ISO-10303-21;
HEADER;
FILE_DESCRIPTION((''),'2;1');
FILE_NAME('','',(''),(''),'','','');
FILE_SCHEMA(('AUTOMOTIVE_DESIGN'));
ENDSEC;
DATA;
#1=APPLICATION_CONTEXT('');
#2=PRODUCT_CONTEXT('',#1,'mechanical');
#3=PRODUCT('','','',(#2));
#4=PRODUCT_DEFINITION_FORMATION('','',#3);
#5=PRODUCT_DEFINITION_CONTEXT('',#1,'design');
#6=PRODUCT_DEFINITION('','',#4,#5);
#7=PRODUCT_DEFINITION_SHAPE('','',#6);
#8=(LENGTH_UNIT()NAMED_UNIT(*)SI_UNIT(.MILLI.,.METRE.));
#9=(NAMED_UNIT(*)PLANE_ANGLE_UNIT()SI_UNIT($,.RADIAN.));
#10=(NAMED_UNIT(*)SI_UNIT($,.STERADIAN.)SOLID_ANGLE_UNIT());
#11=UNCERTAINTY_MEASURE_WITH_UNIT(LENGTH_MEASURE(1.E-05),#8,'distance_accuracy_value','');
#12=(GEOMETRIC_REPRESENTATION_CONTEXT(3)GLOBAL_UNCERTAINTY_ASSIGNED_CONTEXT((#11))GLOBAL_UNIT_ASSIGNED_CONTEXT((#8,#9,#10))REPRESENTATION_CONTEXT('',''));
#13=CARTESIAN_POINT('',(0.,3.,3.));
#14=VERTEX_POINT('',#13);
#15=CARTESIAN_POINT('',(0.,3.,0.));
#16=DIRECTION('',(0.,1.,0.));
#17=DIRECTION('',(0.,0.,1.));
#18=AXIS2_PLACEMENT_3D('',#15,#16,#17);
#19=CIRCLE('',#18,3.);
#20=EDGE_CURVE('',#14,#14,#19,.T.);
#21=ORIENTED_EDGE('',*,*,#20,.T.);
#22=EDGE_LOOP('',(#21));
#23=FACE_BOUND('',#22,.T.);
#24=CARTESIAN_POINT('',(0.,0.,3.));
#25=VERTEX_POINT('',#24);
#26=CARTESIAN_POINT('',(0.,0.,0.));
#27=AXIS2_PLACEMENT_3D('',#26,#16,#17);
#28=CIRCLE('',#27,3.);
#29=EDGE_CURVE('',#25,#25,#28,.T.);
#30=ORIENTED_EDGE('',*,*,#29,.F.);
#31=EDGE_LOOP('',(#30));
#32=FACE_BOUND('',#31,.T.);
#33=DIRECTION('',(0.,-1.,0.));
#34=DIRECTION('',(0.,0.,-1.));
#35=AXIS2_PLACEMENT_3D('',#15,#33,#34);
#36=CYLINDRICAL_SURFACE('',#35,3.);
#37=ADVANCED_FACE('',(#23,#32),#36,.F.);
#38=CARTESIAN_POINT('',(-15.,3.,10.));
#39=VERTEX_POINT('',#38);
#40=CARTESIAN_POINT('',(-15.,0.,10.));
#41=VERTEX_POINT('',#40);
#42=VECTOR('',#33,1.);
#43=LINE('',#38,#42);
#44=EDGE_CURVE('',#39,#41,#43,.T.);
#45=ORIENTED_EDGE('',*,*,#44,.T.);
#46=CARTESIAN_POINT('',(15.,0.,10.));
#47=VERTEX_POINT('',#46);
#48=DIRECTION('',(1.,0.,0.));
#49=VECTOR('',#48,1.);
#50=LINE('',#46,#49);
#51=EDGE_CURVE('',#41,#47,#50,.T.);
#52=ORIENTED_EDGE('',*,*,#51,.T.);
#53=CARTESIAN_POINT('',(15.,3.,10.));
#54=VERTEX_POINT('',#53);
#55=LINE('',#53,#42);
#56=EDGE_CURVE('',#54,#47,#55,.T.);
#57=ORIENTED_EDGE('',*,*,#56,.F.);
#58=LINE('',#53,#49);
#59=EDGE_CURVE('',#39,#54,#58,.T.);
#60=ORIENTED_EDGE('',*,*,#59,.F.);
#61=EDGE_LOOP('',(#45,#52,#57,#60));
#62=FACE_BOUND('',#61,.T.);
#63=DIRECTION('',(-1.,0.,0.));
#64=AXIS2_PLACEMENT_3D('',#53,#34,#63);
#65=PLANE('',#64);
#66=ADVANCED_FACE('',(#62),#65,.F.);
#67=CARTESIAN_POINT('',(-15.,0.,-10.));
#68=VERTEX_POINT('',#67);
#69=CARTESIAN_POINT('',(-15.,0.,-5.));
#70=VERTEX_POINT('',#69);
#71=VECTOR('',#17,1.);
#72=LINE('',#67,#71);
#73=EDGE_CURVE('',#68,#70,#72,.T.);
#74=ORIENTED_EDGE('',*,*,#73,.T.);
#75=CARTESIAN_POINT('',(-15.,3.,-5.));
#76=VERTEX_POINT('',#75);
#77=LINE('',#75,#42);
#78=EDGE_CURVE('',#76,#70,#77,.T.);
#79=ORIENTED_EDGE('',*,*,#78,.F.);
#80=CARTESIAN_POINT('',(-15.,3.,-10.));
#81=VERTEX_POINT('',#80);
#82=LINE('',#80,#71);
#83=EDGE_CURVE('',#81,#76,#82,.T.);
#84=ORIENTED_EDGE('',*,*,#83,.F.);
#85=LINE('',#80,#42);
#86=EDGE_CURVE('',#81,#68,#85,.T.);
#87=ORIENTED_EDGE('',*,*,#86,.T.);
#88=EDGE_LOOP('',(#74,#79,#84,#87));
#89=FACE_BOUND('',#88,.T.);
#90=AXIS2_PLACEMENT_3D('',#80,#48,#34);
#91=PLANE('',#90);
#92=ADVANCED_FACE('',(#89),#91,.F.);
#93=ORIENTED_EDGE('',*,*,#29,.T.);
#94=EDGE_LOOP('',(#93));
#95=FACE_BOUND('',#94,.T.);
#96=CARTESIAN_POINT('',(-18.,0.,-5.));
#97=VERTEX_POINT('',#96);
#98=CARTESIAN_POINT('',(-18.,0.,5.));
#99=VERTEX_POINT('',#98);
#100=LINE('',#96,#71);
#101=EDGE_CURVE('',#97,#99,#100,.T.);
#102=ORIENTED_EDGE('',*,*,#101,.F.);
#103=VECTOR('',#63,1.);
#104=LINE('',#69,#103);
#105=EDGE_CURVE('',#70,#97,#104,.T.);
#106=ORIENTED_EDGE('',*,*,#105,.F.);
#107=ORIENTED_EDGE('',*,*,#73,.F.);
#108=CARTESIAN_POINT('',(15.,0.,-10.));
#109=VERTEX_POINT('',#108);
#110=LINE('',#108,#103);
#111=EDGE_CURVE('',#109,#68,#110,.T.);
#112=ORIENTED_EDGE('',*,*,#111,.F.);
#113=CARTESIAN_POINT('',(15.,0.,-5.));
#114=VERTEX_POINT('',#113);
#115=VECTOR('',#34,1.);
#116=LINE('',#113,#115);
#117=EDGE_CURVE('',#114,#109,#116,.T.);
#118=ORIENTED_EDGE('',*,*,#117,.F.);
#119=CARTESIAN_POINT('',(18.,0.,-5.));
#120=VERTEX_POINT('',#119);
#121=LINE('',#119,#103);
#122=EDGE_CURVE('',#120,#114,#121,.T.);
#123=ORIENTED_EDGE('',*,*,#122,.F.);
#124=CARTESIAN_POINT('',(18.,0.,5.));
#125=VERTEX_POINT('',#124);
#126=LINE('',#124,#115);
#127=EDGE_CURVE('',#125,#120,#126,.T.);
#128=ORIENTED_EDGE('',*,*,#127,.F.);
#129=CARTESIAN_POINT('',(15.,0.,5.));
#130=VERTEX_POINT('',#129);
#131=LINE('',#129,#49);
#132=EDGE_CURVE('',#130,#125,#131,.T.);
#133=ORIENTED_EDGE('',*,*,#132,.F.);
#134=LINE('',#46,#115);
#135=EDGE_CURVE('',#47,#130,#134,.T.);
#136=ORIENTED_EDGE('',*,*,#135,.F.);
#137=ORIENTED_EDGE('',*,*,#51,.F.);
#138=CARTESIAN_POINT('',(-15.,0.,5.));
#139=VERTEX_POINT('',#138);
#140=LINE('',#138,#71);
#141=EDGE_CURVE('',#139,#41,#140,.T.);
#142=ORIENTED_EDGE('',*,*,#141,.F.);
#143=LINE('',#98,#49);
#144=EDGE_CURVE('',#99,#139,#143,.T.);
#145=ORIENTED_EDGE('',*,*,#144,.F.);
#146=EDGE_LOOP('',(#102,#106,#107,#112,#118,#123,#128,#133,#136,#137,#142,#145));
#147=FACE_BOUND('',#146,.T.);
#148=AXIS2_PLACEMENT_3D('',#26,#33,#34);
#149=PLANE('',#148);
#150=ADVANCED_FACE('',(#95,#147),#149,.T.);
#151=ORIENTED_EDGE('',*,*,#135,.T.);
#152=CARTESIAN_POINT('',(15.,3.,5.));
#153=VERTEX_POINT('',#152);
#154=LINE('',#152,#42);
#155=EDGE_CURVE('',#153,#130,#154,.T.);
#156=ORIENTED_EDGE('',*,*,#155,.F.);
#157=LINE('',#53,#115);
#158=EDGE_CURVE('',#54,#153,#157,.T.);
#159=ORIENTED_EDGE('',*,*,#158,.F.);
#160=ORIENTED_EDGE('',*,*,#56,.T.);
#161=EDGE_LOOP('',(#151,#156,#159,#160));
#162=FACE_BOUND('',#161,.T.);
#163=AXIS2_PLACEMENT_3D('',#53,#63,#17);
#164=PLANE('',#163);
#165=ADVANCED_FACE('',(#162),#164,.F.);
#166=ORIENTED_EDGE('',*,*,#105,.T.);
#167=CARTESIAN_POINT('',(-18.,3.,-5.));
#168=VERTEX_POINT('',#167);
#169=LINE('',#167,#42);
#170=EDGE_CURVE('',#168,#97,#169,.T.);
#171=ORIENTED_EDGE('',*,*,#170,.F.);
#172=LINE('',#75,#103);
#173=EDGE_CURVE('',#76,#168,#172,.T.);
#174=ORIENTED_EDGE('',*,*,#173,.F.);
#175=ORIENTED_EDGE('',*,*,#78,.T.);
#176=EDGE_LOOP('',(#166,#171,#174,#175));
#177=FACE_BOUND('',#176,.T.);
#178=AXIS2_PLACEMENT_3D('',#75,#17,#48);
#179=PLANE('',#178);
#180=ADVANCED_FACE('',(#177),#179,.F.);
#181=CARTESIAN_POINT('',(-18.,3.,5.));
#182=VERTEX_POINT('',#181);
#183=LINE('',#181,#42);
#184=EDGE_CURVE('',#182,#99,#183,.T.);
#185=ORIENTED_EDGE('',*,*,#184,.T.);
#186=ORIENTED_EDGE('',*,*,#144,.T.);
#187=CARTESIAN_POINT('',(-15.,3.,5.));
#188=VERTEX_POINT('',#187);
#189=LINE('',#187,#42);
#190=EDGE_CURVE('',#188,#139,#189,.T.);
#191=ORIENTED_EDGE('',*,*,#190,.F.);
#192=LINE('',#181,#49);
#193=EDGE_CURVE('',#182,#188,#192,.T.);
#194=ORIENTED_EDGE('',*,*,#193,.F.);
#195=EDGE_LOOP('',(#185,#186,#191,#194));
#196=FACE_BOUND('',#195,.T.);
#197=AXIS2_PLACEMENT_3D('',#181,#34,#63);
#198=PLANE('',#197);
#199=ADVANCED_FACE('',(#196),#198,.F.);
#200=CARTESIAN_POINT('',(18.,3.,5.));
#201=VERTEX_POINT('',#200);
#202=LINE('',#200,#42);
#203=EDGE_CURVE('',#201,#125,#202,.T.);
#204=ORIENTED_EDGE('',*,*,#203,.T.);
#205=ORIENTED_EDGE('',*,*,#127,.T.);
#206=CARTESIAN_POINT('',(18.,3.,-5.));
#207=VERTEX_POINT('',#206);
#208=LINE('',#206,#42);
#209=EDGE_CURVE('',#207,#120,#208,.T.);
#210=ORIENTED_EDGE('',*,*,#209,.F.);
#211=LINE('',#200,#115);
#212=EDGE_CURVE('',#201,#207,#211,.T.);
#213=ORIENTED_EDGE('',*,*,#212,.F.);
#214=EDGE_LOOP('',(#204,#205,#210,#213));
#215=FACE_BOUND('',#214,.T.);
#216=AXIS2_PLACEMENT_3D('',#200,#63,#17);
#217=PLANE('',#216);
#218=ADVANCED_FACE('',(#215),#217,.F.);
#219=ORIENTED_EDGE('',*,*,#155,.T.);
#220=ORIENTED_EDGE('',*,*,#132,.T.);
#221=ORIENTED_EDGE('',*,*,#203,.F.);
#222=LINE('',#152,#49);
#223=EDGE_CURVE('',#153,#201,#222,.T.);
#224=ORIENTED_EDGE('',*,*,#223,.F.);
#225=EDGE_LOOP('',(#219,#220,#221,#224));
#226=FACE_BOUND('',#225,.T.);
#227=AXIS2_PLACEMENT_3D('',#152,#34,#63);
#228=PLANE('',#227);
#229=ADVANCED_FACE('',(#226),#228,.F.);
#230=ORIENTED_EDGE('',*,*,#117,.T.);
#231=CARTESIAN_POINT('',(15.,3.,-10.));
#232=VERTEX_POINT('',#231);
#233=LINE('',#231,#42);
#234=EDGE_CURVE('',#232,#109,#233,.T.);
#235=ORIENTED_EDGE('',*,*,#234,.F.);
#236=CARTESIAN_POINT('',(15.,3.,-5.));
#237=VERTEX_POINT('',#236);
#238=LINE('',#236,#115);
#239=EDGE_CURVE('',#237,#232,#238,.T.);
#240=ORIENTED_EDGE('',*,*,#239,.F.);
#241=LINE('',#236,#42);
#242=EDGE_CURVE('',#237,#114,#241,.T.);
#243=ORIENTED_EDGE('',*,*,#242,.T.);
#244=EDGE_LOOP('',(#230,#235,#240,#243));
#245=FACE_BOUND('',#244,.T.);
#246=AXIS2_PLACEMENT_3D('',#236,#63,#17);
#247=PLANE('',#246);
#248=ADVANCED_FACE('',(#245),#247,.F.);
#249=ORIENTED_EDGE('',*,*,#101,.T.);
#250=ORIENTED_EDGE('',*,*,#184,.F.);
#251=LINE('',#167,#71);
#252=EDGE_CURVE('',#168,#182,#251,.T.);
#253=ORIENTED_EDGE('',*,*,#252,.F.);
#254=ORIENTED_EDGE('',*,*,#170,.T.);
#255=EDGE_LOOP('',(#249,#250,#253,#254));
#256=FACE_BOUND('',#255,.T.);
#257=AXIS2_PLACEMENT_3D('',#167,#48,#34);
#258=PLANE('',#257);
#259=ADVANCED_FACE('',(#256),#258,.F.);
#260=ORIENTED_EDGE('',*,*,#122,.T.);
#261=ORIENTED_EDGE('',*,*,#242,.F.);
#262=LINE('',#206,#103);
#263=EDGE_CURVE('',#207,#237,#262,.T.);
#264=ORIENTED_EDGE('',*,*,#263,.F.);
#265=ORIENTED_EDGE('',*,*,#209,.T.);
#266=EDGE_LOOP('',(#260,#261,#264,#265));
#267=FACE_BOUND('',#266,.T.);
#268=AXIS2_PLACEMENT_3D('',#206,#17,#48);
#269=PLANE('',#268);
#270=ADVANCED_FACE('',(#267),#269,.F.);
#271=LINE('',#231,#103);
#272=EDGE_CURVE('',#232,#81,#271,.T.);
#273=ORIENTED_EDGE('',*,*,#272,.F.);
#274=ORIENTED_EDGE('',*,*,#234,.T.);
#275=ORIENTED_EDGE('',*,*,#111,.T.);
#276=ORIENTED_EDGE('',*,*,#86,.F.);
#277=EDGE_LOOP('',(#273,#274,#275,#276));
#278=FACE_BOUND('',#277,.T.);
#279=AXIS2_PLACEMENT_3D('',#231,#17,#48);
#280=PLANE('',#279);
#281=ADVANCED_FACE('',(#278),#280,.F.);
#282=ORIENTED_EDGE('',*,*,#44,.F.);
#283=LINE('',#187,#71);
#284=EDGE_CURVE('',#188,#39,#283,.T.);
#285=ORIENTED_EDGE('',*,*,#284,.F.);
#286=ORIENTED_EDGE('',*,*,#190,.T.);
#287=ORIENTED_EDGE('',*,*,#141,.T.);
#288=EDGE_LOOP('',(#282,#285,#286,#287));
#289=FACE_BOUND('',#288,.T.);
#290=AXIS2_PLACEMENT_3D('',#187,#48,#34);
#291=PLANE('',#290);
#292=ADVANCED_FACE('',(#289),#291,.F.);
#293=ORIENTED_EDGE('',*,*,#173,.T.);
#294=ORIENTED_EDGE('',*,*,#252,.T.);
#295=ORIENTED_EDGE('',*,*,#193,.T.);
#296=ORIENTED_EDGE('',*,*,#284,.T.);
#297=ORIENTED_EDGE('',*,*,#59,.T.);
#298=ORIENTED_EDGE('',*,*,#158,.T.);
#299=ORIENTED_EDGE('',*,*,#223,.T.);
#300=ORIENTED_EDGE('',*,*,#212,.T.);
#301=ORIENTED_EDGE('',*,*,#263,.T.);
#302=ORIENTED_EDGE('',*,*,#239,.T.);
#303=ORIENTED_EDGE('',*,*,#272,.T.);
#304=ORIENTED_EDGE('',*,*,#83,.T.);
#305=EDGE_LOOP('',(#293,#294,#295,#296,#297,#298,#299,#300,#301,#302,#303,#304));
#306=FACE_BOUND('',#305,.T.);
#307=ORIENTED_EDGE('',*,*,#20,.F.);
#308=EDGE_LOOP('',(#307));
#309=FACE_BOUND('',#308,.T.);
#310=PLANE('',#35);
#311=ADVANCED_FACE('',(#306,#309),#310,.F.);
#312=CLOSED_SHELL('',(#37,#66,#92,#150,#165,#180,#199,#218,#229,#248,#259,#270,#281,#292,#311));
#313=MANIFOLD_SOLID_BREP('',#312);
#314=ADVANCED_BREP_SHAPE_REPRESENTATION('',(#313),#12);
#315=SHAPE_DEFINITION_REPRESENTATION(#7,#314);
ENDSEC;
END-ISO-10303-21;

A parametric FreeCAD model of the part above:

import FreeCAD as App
import Part
import Sketcher

V = App.Vector

doc = App.newDocument("Part")
params = doc.addObject("Spreadsheet::Sheet", "Params")
for row, (alias, value) in enumerate([
    ("sketch1_diameter", "6 mm"),
    ("sketch1_width", "3 mm"),
    ("sketch1_width2", "30 mm"),
    ("sketch1_height", "5 mm"),
    ("sketch1_height2", "10 mm"),
    ("pad1_length", "3 mm"),
], start=1):
    params.set(f"A{row}", alias)
    params.set(f"B{row}", "=" + value)
    params.setAlias(f"B{row}", alias)

body = doc.addObject("PartDesign::Body", "Body")

sketch1 = body.newObject("Sketcher::SketchObject", "Sketch")
sketch1.AttachmentSupport = (doc.getObject("XZ_Plane"), [""])
sketch1.MapMode = "FlatFace"
sketch1.addGeometry(Part.LineSegment(V(-15, -10, 0), V(-15, -5, 0)), False)
sketch1.addGeometry(Part.LineSegment(V(-15, -5, 0), V(-18, -5, 0)), False)
sketch1.addGeometry(Part.LineSegment(V(-18, -5, 0), V(-18, 5, 0)), False)
sketch1.addGeometry(Part.LineSegment(V(-18, 5, 0), V(-15, 5, 0)), False)
sketch1.addGeometry(Part.LineSegment(V(-15, 5, 0), V(-15, 10, 0)), False)
sketch1.addGeometry(Part.LineSegment(V(-15, 10, 0), V(15, 10, 0)), False)
sketch1.addGeometry(Part.LineSegment(V(15, 10, 0), V(15, 5, 0)), False)
sketch1.addGeometry(Part.LineSegment(V(15, 5, 0), V(18, 5, 0)), False)
sketch1.addGeometry(Part.LineSegment(V(18, 5, 0), V(18, -5, 0)), False)
sketch1.addGeometry(Part.LineSegment(V(18, -5, 0), V(15, -5, 0)), False)
sketch1.addGeometry(Part.LineSegment(V(15, -5, 0), V(15, -10, 0)), False)
sketch1.addGeometry(Part.LineSegment(V(15, -10, 0), V(-15, -10, 0)), False)
sketch1.addGeometry(Part.Circle(V(0, 0, 0), V(0, 0, 1), 3), False)
sketch1.addConstraint(Sketcher.Constraint("Coincident", 0, 2, 1, 1))
sketch1.addConstraint(Sketcher.Constraint("Coincident", 1, 2, 2, 1))
sketch1.addConstraint(Sketcher.Constraint("Coincident", 2, 2, 3, 1))
sketch1.addConstraint(Sketcher.Constraint("Coincident", 3, 2, 4, 1))
sketch1.addConstraint(Sketcher.Constraint("Coincident", 4, 2, 5, 1))
sketch1.addConstraint(Sketcher.Constraint("Coincident", 5, 2, 6, 1))
sketch1.addConstraint(Sketcher.Constraint("Coincident", 6, 2, 7, 1))
sketch1.addConstraint(Sketcher.Constraint("Coincident", 7, 2, 8, 1))
sketch1.addConstraint(Sketcher.Constraint("Coincident", 8, 2, 9, 1))
sketch1.addConstraint(Sketcher.Constraint("Coincident", 9, 2, 10, 1))
sketch1.addConstraint(Sketcher.Constraint("Coincident", 10, 2, 11, 1))
sketch1.addConstraint(Sketcher.Constraint("Coincident", 11, 2, 0, 1))
sketch1.addConstraint(Sketcher.Constraint("Vertical", 0))
sketch1.addConstraint(Sketcher.Constraint("Horizontal", 1))
sketch1.addConstraint(Sketcher.Constraint("Vertical", 2))
sketch1.addConstraint(Sketcher.Constraint("Horizontal", 3))
sketch1.addConstraint(Sketcher.Constraint("Vertical", 4))
sketch1.addConstraint(Sketcher.Constraint("Horizontal", 5))
sketch1.addConstraint(Sketcher.Constraint("Vertical", 6))
sketch1.addConstraint(Sketcher.Constraint("Horizontal", 7))
sketch1.addConstraint(Sketcher.Constraint("Vertical", 8))
sketch1.addConstraint(Sketcher.Constraint("Horizontal", 9))
sketch1.addConstraint(Sketcher.Constraint("Vertical", 10))
sketch1.addConstraint(Sketcher.Constraint("Horizontal", 11))
sketch1.addConstraint(Sketcher.Constraint("Coincident", 12, 3, -1, 1))
sketch1.addConstraint(Sketcher.Constraint("Symmetric", 0, 2, 6, 2, -1, 1))
sketch1.addConstraint(Sketcher.Constraint("Symmetric", 2, 2, 8, 2, -1, 1))
sketch1.addConstraint(Sketcher.Constraint("Symmetric", 4, 2, 10, 2, -1, 1))
sketch1.addConstraint(Sketcher.Constraint("Symmetric", 3, 2, 6, 2, -2))
sketch1.addConstraint(Sketcher.Constraint("Diameter", 12, 6.0))
sketch1.addConstraint(Sketcher.Constraint("DistanceX", 1, 2, 1, 1, 3.0))
sketch1.addConstraint(Sketcher.Constraint("DistanceX", 5, 1, 5, 2, 30.0))
sketch1.addConstraint(Sketcher.Constraint("DistanceY", 0, 1, 0, 2, 5.0))
sketch1.addConstraint(Sketcher.Constraint("DistanceY", 2, 1, 2, 2, 10.0))
sketch1.setExpression("Constraints[29]", "Params.sketch1_diameter")
sketch1.setExpression("Constraints[30]", "Params.sketch1_width")
sketch1.setExpression("Constraints[31]", "Params.sketch1_width2")
sketch1.setExpression("Constraints[32]", "Params.sketch1_height")
sketch1.setExpression("Constraints[33]", "Params.sketch1_height2")
pad1 = body.newObject("PartDesign::Pad", "Pad")
pad1.Profile = sketch1
pad1.setExpression("Length", "Params.pad1_length")
pad1.Reversed = True

doc.recompute()
